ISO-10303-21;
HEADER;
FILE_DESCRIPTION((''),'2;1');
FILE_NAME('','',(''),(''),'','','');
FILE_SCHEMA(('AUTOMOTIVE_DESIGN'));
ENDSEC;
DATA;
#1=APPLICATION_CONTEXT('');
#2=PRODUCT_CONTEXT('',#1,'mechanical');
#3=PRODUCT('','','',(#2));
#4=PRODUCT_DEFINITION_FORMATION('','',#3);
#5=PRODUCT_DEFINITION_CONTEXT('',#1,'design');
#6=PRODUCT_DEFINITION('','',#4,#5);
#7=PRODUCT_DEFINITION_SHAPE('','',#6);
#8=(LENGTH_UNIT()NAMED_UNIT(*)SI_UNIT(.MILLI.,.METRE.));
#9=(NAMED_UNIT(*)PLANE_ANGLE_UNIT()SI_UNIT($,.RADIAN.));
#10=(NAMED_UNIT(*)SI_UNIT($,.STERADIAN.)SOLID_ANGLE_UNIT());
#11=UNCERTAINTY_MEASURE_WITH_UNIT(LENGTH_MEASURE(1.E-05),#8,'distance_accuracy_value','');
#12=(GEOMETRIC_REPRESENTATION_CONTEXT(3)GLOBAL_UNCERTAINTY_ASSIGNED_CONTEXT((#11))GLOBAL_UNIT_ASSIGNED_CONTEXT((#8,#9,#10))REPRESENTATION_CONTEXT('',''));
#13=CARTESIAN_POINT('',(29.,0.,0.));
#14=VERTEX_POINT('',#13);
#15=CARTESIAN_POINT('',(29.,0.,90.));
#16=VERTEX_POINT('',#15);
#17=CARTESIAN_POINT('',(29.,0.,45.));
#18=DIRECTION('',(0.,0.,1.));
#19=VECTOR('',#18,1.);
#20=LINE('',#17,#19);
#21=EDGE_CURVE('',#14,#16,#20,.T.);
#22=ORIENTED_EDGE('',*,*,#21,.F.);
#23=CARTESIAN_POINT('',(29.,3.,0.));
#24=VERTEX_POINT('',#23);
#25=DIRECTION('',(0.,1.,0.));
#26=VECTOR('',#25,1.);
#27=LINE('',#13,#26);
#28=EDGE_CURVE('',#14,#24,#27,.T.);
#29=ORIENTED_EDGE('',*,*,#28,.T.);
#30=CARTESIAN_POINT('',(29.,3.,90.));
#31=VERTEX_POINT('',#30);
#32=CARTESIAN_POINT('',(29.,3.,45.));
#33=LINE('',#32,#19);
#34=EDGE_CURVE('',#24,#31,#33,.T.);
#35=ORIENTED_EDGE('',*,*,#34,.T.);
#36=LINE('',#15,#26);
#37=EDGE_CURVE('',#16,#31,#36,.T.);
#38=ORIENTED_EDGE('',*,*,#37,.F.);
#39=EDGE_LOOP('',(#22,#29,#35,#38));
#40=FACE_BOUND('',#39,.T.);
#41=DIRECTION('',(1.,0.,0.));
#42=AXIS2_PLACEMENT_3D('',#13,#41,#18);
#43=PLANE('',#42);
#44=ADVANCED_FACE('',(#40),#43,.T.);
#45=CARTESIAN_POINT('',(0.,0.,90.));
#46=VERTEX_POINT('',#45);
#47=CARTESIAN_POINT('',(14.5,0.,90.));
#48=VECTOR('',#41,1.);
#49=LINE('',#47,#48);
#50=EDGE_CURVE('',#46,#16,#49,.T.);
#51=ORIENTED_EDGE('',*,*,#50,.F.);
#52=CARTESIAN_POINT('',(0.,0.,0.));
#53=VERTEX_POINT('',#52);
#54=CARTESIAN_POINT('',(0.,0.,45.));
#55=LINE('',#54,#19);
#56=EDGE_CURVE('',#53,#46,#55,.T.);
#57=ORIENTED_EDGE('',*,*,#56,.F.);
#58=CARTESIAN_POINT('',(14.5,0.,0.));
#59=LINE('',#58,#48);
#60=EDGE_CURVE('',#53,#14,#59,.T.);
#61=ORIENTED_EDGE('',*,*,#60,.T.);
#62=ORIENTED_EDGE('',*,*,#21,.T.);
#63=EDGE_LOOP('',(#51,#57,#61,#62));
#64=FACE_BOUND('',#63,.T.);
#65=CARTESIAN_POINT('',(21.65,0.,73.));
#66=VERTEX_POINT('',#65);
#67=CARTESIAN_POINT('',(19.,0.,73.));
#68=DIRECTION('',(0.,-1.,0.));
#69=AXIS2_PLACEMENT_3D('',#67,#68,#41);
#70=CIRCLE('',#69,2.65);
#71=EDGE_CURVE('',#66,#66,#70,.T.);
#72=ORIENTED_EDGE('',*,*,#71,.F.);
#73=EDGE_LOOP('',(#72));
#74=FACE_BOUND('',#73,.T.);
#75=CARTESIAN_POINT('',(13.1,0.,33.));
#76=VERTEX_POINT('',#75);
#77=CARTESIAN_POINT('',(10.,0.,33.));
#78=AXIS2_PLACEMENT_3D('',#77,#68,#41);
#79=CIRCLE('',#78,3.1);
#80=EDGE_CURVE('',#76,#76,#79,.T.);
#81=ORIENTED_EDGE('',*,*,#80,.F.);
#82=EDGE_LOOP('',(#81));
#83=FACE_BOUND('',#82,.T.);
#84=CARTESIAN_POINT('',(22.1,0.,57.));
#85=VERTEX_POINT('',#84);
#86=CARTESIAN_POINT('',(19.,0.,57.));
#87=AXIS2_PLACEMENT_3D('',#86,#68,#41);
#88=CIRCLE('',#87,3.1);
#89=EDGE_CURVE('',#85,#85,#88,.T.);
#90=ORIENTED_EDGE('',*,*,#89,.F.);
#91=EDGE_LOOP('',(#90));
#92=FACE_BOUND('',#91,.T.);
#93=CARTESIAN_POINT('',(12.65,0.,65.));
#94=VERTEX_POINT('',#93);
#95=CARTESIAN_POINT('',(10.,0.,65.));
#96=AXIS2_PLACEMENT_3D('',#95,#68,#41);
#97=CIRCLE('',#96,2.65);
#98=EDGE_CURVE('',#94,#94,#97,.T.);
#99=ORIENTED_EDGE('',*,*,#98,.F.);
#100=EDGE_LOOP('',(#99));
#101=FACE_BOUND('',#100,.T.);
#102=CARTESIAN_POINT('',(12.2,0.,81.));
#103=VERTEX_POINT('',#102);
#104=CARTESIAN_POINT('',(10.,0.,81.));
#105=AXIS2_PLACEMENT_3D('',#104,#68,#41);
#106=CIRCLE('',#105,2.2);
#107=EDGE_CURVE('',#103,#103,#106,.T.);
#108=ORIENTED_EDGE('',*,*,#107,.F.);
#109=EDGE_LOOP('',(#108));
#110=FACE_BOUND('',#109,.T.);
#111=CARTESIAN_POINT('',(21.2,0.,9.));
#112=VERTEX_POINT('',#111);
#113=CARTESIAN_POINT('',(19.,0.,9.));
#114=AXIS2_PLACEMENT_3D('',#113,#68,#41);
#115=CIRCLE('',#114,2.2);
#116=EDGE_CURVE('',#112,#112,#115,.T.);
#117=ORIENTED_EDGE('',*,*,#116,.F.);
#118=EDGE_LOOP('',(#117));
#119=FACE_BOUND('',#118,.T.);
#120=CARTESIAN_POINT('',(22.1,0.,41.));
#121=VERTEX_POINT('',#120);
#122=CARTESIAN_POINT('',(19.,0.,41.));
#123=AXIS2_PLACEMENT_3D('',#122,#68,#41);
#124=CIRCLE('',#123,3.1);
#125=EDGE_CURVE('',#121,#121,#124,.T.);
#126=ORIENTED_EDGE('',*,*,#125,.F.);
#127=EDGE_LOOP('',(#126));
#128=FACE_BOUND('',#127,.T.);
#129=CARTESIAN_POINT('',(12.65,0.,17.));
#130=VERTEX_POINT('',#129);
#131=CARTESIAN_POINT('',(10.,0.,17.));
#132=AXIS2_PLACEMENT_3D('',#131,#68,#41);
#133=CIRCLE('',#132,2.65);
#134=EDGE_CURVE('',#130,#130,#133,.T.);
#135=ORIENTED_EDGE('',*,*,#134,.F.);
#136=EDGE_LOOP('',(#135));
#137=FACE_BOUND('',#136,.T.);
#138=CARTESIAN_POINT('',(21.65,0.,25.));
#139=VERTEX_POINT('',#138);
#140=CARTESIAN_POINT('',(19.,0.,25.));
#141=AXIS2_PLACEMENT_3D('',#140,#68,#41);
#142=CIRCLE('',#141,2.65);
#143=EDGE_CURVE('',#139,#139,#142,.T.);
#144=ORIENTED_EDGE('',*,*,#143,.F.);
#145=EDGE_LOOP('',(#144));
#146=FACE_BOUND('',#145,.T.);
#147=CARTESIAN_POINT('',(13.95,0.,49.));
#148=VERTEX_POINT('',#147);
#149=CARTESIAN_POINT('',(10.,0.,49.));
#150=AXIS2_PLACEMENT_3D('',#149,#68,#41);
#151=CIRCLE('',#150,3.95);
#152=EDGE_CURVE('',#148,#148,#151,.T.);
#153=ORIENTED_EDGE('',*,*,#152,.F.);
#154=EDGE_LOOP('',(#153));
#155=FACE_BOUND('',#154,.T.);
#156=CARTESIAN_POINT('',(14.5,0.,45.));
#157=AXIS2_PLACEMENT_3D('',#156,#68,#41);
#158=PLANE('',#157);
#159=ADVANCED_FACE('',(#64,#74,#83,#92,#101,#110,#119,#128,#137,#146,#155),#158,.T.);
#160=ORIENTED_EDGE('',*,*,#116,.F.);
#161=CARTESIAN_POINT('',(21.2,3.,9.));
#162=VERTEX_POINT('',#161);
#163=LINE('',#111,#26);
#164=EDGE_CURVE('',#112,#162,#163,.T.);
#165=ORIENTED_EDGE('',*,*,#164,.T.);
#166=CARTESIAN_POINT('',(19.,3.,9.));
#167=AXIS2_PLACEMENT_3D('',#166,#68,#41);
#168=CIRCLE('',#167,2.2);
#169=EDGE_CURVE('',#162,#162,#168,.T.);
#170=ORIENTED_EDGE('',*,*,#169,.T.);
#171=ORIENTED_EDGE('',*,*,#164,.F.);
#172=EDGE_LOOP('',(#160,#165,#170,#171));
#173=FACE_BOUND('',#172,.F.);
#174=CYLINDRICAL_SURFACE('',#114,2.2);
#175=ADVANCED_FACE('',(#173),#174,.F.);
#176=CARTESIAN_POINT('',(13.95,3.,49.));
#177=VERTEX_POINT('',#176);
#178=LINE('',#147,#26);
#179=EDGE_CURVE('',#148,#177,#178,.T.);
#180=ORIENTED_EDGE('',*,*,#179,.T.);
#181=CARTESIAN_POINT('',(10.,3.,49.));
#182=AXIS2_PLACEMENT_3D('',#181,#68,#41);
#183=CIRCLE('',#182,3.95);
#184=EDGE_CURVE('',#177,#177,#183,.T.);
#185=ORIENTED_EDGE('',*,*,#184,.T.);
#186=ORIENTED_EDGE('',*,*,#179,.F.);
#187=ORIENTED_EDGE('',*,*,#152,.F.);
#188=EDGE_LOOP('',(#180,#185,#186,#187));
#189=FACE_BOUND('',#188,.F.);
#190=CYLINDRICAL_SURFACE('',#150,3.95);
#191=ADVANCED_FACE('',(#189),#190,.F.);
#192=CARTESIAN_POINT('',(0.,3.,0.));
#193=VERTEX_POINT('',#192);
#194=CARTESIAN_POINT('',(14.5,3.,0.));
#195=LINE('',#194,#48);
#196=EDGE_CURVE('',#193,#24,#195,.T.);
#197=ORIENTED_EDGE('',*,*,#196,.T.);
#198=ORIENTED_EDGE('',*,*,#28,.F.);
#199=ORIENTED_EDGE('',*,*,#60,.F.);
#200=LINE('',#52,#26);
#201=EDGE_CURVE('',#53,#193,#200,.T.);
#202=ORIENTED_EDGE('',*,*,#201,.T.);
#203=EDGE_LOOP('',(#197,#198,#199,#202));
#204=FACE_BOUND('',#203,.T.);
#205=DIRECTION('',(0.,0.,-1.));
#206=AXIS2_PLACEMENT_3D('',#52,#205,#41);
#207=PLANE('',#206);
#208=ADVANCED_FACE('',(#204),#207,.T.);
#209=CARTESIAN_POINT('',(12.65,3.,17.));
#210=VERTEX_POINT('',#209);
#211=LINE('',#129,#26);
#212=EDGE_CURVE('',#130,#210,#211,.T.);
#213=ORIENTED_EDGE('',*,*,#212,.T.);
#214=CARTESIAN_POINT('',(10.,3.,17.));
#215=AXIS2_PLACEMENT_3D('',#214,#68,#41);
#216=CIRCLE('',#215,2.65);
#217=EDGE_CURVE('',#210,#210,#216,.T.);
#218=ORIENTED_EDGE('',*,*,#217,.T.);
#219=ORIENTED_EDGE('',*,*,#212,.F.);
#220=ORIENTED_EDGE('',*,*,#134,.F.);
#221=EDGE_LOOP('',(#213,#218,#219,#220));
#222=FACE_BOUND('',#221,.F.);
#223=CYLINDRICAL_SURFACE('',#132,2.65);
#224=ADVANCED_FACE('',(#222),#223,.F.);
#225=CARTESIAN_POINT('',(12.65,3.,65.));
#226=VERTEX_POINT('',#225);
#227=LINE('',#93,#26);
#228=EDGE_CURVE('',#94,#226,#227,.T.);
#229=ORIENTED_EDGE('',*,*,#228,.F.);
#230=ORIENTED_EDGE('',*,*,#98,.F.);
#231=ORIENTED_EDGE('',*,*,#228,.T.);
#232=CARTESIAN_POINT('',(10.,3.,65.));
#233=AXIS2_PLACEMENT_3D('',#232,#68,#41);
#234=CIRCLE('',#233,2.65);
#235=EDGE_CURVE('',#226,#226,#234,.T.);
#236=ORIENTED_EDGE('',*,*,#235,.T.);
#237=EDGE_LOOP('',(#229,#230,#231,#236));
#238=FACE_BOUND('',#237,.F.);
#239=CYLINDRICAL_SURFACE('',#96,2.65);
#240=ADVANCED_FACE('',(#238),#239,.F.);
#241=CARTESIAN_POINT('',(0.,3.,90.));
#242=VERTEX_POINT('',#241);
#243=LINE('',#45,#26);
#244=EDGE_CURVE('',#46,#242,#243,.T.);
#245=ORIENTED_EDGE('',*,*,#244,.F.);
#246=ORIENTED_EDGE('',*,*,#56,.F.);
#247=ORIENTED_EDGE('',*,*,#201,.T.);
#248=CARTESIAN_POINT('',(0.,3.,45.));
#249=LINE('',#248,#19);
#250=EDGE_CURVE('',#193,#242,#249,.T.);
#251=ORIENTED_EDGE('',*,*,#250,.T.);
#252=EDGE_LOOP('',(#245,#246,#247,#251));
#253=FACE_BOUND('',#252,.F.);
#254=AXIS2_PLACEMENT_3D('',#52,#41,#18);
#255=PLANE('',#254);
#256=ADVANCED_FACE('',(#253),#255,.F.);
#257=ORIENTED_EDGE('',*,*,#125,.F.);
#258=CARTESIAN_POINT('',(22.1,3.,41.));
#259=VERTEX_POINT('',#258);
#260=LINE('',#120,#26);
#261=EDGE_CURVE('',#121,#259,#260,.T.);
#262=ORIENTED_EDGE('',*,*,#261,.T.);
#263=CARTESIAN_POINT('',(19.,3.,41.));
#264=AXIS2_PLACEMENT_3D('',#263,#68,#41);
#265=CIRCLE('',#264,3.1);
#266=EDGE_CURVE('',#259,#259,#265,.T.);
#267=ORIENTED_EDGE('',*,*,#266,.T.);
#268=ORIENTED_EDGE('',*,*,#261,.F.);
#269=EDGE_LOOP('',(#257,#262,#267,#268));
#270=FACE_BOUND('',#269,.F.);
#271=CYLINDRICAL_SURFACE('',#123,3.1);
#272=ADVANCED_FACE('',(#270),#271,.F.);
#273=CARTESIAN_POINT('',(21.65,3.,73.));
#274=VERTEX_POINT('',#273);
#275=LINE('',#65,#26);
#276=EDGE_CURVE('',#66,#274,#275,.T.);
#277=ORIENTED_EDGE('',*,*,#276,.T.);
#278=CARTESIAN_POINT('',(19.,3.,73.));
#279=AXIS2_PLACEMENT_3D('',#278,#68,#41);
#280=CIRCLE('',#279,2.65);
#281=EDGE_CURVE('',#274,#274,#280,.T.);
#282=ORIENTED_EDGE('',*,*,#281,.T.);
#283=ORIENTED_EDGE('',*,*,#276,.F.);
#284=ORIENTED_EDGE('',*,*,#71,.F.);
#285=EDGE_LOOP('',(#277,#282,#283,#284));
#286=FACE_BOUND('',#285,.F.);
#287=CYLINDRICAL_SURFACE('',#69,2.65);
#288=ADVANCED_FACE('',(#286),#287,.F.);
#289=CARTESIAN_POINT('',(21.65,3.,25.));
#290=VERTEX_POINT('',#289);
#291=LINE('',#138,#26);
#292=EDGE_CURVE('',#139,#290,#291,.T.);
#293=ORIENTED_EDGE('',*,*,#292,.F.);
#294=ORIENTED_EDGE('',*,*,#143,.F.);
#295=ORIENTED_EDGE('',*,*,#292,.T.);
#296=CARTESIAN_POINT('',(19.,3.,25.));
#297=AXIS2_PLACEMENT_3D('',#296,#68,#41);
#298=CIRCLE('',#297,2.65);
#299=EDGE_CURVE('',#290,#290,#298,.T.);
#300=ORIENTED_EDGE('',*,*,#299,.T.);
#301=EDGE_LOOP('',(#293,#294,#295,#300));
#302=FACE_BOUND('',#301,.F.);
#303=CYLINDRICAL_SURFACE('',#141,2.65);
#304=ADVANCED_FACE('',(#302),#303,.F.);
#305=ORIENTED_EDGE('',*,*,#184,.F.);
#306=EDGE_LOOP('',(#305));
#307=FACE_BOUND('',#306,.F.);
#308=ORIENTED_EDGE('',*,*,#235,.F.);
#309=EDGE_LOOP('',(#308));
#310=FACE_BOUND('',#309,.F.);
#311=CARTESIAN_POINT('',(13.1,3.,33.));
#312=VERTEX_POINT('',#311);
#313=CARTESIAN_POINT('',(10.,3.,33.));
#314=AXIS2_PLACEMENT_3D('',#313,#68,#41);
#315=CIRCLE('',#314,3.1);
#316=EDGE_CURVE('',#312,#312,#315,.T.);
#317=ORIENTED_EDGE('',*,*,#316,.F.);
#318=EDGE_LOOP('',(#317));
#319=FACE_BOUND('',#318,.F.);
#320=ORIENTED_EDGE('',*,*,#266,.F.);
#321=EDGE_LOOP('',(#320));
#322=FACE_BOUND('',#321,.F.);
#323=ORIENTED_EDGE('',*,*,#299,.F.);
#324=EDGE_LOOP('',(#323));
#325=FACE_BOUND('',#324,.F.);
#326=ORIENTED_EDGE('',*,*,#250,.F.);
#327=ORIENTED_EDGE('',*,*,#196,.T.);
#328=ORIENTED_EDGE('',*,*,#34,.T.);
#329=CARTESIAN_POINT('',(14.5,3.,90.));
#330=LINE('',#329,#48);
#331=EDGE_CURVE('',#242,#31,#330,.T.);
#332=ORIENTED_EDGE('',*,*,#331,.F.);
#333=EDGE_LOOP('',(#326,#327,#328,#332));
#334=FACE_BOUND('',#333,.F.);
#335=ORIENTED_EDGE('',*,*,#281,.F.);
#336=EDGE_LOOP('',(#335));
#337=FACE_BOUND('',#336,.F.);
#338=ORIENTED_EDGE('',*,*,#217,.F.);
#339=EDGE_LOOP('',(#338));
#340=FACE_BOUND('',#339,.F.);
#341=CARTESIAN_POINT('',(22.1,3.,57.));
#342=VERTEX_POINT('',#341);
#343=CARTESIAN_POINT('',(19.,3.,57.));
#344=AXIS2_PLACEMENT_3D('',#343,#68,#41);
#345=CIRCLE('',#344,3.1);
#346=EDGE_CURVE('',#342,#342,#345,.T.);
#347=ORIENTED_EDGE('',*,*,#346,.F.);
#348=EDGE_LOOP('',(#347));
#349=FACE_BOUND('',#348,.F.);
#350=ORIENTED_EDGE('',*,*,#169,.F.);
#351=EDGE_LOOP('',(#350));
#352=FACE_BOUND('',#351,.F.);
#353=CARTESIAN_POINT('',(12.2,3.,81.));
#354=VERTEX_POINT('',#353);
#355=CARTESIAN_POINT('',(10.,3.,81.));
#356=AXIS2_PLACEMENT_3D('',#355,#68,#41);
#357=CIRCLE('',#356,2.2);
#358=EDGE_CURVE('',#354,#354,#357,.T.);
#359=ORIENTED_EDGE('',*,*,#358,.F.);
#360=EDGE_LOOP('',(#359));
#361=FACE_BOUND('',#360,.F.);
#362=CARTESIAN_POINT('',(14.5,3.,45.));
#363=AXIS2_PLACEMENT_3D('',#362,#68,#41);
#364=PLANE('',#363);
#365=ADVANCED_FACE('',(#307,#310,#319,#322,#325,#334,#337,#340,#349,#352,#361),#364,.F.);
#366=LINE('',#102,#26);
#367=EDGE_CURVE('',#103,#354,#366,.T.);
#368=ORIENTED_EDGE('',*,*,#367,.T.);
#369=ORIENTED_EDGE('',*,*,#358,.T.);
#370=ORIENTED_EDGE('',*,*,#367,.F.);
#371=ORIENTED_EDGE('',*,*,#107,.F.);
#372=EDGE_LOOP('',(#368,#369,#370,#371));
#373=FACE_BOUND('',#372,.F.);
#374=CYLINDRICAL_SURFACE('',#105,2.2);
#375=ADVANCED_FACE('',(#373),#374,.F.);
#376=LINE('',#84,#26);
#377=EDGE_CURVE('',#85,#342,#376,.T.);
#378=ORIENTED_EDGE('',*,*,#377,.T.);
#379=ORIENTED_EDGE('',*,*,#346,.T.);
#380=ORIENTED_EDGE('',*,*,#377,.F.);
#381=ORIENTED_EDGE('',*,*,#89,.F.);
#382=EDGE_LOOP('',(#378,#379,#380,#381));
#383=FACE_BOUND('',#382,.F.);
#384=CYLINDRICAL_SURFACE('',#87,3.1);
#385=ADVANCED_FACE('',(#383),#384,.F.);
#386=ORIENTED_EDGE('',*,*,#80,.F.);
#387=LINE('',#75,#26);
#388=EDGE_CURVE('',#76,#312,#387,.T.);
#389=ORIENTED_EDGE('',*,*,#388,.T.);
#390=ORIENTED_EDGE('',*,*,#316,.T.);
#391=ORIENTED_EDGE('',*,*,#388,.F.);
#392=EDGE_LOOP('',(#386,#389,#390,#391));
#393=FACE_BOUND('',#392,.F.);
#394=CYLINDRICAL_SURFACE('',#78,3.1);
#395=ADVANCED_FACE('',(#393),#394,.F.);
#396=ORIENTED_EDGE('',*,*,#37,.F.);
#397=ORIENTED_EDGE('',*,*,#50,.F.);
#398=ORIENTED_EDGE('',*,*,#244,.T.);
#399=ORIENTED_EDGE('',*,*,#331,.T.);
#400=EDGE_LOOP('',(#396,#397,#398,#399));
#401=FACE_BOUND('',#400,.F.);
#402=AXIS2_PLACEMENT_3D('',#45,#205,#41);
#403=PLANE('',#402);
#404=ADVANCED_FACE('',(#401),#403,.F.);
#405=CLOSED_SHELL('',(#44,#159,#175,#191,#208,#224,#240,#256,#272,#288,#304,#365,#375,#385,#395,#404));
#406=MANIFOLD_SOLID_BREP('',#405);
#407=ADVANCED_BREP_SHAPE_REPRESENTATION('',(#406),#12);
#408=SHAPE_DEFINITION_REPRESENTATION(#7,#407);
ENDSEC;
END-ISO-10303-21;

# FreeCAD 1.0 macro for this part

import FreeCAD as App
import Part
import Sketcher

V = App.Vector
Q = App.Units.Quantity


def add_polygon(sketch, points):
    """Adds a closed chain of lines whose ends are joined by coincident constraints."""
    first, n = sketch.GeometryCount, len(points)
    for a, b in zip(points, points[1:] + points[:1]):
        sketch.addGeometry(Part.LineSegment(App.Vector(*a, 0), App.Vector(*b, 0)), False)
    for i in range(n):
        sketch.addConstraint(Sketcher.Constraint("Coincident", first + i, 2, first + (i + 1) % n, 1))

doc = App.newDocument("Part")
body = doc.addObject("PartDesign::Body", "Body")

# Sketch on XZ plane
sketch1 = doc.addObject("Sketcher::SketchObject", "Sketch")
body.addObject(sketch1)
sketch1.AttachmentSupport = (doc.XZ_Plane, [""])
sketch1.MapMode = "FlatFace"
add_polygon(sketch1, [(0, 90), (0, 0), (29, 0), (29, 90)])  # lines 0-3
sketch1.addGeometry(Part.Circle(V(10, 17, 0), V(0, 0, 1), 2.6), False)  # 4
sketch1.addGeometry(Part.Circle(V(10, 33, 0), V(0, 0, 1), 3.1), False)  # 5
sketch1.addGeometry(Part.Circle(V(19, 9, 0), V(0, 0, 1), 2.2), False)  # 6
sketch1.addGeometry(Part.Circle(V(19, 25, 0), V(0, 0, 1), 2.6), False)  # 7
sketch1.addGeometry(Part.Circle(V(19, 41, 0), V(0, 0, 1), 3.1), False)  # 8
sketch1.addGeometry(Part.Circle(V(10, 49, 0), V(0, 0, 1), 4), False)  # 9
sketch1.addGeometry(Part.Circle(V(10, 65, 0), V(0, 0, 1), 2.6), False)  # 10
sketch1.addGeometry(Part.Circle(V(10, 81, 0), V(0, 0, 1), 2.2), False)  # 11
sketch1.addGeometry(Part.Circle(V(19, 57, 0), V(0, 0, 1), 3.1), False)  # 12
sketch1.addGeometry(Part.Circle(V(19, 73, 0), V(0, 0, 1), 2.6), False)  # 13
sketch1.addConstraint(Sketcher.Constraint("Vertical", 0))
sketch1.addConstraint(Sketcher.Constraint("Horizontal", 1))
sketch1.addConstraint(Sketcher.Constraint("Vertical", 2))
sketch1.addConstraint(Sketcher.Constraint("Horizontal", 3))
sketch1.addConstraint(Sketcher.Constraint("Coincident", 0, 2, -1, 1))
sketch1.addConstraint(Sketcher.Constraint("Equal", 4, 7))
sketch1.addConstraint(Sketcher.Constraint("Equal", 5, 8))
sketch1.addConstraint(Sketcher.Constraint("Equal", 7, 10))
sketch1.addConstraint(Sketcher.Constraint("Equal", 6, 11))
sketch1.addConstraint(Sketcher.Constraint("Equal", 8, 12))
sketch1.addConstraint(Sketcher.Constraint("Equal", 10, 13))
sketch1.addConstraint(Sketcher.Constraint("Vertical", 4, 3, 5, 3))
sketch1.addConstraint(Sketcher.Constraint("Vertical", 6, 3, 7, 3))
sketch1.addConstraint(Sketcher.Constraint("Vertical", 7, 3, 8, 3))
sketch1.addConstraint(Sketcher.Constraint("Vertical", 5, 3, 9, 3))
sketch1.addConstraint(Sketcher.Constraint("Vertical", 9, 3, 10, 3))
sketch1.addConstraint(Sketcher.Constraint("Vertical", 10, 3, 11, 3))
sketch1.addConstraint(Sketcher.Constraint("Vertical", 8, 3, 12, 3))
sketch1.addConstraint(Sketcher.Constraint("Vertical", 12, 3, 13, 3))
sketch1.addConstraint(Sketcher.Constraint("Diameter", 4, Q("5.3 mm")))
sketch1.addConstraint(Sketcher.Constraint("Diameter", 5, Q("6.2 mm")))
sketch1.addConstraint(Sketcher.Constraint("Diameter", 6, Q("4.4 mm")))
sketch1.addConstraint(Sketcher.Constraint("Diameter", 9, Q("7.9 mm")))
sketch1.addConstraint(Sketcher.Constraint("DistanceX", 1, 1, 1, 2, Q("29 mm")))
sketch1.addConstraint(Sketcher.Constraint("DistanceY", 0, 2, 0, 1, Q("90 mm")))
sketch1.addConstraint(Sketcher.Constraint("DistanceX", -1, 1, 4, 3, Q("10 mm")))
sketch1.addConstraint(Sketcher.Constraint("DistanceY", -1, 1, 4, 3, Q("17 mm")))
sketch1.addConstraint(Sketcher.Constraint("DistanceY", -1, 1, 5, 3, Q("33 mm")))
sketch1.addConstraint(Sketcher.Constraint("DistanceX", -1, 1, 6, 3, Q("19 mm")))
sketch1.addConstraint(Sketcher.Constraint("DistanceY", -1, 1, 6, 3, Q("9 mm")))
sketch1.addConstraint(Sketcher.Constraint("DistanceY", -1, 1, 7, 3, Q("25 mm")))
sketch1.addConstraint(Sketcher.Constraint("DistanceY", -1, 1, 8, 3, Q("41 mm")))
sketch1.addConstraint(Sketcher.Constraint("DistanceY", -1, 1, 9, 3, Q("49 mm")))
sketch1.addConstraint(Sketcher.Constraint("DistanceY", -1, 1, 10, 3, Q("65 mm")))
sketch1.addConstraint(Sketcher.Constraint("DistanceY", -1, 1, 11, 3, Q("81 mm")))
sketch1.addConstraint(Sketcher.Constraint("DistanceY", -1, 1, 12, 3, Q("57 mm")))
sketch1.addConstraint(Sketcher.Constraint("DistanceY", -1, 1, 13, 3, Q("73 mm")))
pad1 = doc.addObject("PartDesign::Pad", "Pad")
body.addObject(pad1)
pad1.Profile = sketch1
pad1.Length = 3
pad1.Reversed = True

doc.recompute()
